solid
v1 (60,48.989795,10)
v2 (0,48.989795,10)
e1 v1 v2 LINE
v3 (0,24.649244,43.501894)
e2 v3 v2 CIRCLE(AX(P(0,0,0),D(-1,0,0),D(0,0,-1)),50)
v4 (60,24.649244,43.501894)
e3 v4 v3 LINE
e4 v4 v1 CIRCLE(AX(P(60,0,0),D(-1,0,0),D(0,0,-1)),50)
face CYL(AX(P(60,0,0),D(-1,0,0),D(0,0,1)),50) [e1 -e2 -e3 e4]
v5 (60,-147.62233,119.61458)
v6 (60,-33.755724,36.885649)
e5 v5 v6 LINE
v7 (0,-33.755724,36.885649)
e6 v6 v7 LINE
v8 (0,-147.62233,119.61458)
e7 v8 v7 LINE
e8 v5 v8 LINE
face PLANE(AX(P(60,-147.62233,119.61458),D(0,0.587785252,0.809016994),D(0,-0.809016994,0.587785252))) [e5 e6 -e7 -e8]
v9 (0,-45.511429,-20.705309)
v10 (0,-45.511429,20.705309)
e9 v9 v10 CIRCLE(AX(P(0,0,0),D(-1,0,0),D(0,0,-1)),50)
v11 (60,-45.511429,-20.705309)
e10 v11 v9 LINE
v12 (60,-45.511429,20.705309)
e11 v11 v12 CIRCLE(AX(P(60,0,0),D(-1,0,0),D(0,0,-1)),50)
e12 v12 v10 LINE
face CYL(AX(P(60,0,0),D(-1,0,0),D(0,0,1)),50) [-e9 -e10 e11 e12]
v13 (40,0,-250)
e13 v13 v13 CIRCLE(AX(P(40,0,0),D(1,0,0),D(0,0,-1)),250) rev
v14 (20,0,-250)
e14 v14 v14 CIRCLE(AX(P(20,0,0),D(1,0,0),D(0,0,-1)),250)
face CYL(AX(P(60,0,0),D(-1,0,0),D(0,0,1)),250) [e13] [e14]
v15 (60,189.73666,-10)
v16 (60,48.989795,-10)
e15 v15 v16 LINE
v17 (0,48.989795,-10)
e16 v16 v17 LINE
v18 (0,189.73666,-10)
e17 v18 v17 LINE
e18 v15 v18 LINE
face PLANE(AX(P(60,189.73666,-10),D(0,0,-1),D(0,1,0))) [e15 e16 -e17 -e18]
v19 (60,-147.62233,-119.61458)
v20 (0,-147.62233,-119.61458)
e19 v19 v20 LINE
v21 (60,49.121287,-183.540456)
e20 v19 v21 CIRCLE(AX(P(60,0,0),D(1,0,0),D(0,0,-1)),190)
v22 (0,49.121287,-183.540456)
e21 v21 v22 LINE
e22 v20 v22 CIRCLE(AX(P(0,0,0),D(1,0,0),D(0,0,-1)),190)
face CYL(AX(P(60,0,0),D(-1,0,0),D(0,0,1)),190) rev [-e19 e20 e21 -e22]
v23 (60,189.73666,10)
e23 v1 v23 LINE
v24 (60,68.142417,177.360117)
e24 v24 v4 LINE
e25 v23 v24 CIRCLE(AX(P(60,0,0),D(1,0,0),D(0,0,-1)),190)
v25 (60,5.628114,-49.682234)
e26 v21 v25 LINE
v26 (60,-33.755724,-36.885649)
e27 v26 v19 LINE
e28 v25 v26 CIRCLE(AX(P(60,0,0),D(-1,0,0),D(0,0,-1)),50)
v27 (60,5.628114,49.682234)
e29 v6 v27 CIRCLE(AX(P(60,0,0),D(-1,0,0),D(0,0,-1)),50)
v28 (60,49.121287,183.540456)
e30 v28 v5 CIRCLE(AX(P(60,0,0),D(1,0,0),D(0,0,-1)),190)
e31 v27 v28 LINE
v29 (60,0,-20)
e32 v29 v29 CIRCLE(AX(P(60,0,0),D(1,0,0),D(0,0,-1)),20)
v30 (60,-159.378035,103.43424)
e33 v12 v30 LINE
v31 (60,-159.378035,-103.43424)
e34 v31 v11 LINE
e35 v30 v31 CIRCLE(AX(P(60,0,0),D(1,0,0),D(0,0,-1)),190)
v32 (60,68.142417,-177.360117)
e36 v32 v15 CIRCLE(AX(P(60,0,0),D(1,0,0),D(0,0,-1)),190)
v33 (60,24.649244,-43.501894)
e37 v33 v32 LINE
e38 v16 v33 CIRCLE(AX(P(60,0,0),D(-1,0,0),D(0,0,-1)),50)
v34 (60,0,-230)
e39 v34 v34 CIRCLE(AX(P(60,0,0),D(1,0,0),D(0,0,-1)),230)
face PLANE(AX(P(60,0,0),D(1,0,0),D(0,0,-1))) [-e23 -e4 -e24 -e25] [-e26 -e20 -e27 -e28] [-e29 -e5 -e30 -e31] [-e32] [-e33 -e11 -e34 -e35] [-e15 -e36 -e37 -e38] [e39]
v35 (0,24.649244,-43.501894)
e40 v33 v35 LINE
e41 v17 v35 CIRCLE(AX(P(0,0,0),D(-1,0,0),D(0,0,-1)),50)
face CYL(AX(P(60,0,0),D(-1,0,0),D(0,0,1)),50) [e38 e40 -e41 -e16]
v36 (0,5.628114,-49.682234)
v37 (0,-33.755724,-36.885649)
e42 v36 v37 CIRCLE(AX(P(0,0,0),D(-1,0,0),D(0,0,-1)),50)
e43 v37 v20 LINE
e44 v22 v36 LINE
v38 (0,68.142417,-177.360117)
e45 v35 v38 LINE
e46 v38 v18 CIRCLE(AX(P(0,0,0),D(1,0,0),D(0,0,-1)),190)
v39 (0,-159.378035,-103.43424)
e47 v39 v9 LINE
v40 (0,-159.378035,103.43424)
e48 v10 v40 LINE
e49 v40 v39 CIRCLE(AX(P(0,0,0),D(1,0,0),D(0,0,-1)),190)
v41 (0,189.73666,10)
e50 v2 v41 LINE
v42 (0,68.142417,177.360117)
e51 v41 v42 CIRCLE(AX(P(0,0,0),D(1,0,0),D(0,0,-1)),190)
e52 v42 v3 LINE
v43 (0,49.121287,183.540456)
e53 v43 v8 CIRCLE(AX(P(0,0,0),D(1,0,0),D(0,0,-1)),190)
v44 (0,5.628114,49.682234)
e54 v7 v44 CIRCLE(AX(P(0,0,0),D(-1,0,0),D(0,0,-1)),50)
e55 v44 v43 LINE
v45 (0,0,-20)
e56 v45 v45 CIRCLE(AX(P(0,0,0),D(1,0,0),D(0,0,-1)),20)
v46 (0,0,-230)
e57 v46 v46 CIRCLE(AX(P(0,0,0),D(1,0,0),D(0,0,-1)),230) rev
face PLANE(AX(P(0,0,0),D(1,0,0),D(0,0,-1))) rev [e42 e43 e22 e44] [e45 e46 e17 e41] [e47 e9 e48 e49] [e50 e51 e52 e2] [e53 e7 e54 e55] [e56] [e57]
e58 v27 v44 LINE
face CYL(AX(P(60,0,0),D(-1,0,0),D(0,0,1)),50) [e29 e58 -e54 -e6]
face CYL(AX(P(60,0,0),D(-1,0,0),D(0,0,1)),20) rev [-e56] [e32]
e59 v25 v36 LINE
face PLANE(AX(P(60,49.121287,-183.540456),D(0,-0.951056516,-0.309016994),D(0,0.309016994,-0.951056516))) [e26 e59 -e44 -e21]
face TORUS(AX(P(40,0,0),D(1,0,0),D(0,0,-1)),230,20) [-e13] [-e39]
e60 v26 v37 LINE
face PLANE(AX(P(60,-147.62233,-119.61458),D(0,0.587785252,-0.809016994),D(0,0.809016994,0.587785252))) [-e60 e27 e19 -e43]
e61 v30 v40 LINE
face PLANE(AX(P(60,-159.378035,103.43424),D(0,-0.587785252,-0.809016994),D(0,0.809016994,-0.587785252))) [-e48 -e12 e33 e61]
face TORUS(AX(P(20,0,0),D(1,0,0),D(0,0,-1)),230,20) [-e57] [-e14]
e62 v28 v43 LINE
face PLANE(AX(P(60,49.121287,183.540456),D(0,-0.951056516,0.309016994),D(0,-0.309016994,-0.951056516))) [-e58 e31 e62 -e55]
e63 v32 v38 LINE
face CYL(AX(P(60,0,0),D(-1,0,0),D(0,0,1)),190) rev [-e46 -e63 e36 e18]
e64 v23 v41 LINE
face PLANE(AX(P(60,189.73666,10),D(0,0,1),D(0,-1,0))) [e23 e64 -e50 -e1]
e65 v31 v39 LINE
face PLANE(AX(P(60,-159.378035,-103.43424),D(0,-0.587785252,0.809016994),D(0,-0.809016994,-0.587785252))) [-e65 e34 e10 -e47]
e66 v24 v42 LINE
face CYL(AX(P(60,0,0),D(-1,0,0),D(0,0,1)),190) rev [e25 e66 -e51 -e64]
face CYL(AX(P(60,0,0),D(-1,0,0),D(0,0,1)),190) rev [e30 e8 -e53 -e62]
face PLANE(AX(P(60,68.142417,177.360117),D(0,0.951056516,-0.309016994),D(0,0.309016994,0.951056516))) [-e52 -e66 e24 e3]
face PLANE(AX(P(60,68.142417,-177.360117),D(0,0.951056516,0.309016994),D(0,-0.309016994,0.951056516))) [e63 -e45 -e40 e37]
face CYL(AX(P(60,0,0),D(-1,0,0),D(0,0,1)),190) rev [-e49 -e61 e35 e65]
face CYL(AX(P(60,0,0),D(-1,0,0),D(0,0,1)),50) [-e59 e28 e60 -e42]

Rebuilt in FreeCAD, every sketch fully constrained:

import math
import FreeCAD as App
import Part
import Sketcher

V = App.Vector
Q = App.Units.Quantity


def edges_at(feature, points):
    """Names of the edges that pass closest to the given points."""
    edges = feature.Shape.Edges
    near = lambda p: min(range(len(edges)), key=lambda i: edges[i].distToShape(Part.Vertex(*p))[0])
    return sorted({f"Edge{near(p) + 1}" for p in points})

doc = App.newDocument("Part")
body = doc.addObject("PartDesign::Body", "Body")

sketch1 = doc.addObject("Sketcher::SketchObject", "Sketch")
body.addObject(sketch1)
sketch1.AttachmentSupport = (doc.YZ_Plane, [""])
sketch1.MapMode = "FlatFace"
sketch1.addGeometry(Part.Circle(V(0, 0, 0), V(0, 0, 1), 250), False)
sketch1.addGeometry(Part.LineSegment(V(-34, 37, 0), V(-148, 120, 0)), False)
sketch1.addGeometry(Part.ArcOfCircle(Part.Circle(V(0, 0, 0), V(0, 0, 1), 190), math.radians(75), math.radians(141)), False)
sketch1.addGeometry(Part.LineSegment(V(49, 184, 0), V(6, 50, 0)), False)
sketch1.addGeometry(Part.ArcOfCircle(Part.Circle(V(0, 0, 0), V(0, 0, 1), 50), math.radians(84), math.radians(132)), False)
sketch1.addGeometry(Part.LineSegment(V(-46, -21, 0), V(-159, -103, 0)), False)
sketch1.addGeometry(Part.ArcOfCircle(Part.Circle(V(0, 0, 0), V(0, 0, 1), 190), math.radians(147), math.radians(213)), False)
sketch1.addGeometry(Part.LineSegment(V(-159, 103, 0), V(-46, 21, 0)), False)
sketch1.addGeometry(Part.ArcOfCircle(Part.Circle(V(0, 0, 0), V(0, 0, 1), 50), math.radians(156), math.radians(204)), False)
sketch1.addGeometry(Part.LineSegment(V(6, -50, 0), V(49, -184, 0)), False)
sketch1.addGeometry(Part.ArcOfCircle(Part.Circle(V(0, 0, 0), V(0, 0, 1), 190), math.radians(-141), math.radians(-75)), False)
sketch1.addGeometry(Part.LineSegment(V(-148, -120, 0), V(-34, -37, 0)), False)
sketch1.addGeometry(Part.ArcOfCircle(Part.Circle(V(0, 0, 0), V(0, 0, 1), 50), math.radians(-132), math.radians(-84)), False)
sketch1.addGeometry(Part.Circle(V(0, 0, 0), V(0, 0, 1), 20), False)
sketch1.addGeometry(Part.ArcOfCircle(Part.Circle(V(0, 0, 0), V(0, 0, 1), 190), math.radians(3), math.radians(69)), False)
sketch1.addGeometry(Part.LineSegment(V(190, 10, 0), V(49, 10, 0)), False)
sketch1.addGeometry(Part.ArcOfCircle(Part.Circle(V(0, 0, 0), V(0, 0, 1), 50), math.radians(12), math.radians(60)), False)
sketch1.addGeometry(Part.LineSegment(V(25, 44, 0), V(68, 177, 0)), False)
sketch1.addGeometry(Part.LineSegment(V(49, -10, 0), V(190, -10, 0)), False)
sketch1.addGeometry(Part.ArcOfCircle(Part.Circle(V(0, 0, 0), V(0, 0, 1), 190), math.radians(-69), math.radians(-3)), False)
sketch1.addGeometry(Part.LineSegment(V(68, -177, 0), V(25, -44, 0)), False)
sketch1.addGeometry(Part.ArcOfCircle(Part.Circle(V(0, 0, 0), V(0, 0, 1), 50), math.radians(-60), math.radians(-12)), False)
sketch1.addConstraint(Sketcher.Constraint("Coincident", 1, 2, 2, 2))
sketch1.addConstraint(Sketcher.Constraint("Coincident", 2, 1, 3, 1))
sketch1.addConstraint(Sketcher.Constraint("Coincident", 3, 2, 4, 1))
sketch1.addConstraint(Sketcher.Constraint("Coincident", 4, 2, 1, 1))
sketch1.addConstraint(Sketcher.Constraint("Coincident", 5, 2, 6, 2))
sketch1.addConstraint(Sketcher.Constraint("Coincident", 6, 1, 7, 1))
sketch1.addConstraint(Sketcher.Constraint("Coincident", 7, 2, 8, 1))
sketch1.addConstraint(Sketcher.Constraint("Coincident", 8, 2, 5, 1))
sketch1.addConstraint(Sketcher.Constraint("Coincident", 9, 2, 10, 2))
sketch1.addConstraint(Sketcher.Constraint("Coincident", 10, 1, 11, 1))
sketch1.addConstraint(Sketcher.Constraint("Coincident", 11, 2, 12, 1))
sketch1.addConstraint(Sketcher.Constraint("Coincident", 12, 2, 9, 1))
sketch1.addConstraint(Sketcher.Constraint("Coincident", 14, 1, 15, 1))
sketch1.addConstraint(Sketcher.Constraint("Coincident", 15, 2, 16, 1))
sketch1.addConstraint(Sketcher.Constraint("Coincident", 16, 2, 17, 1))
sketch1.addConstraint(Sketcher.Constraint("Coincident", 17, 2, 14, 2))
sketch1.addConstraint(Sketcher.Constraint("Coincident", 18, 2, 19, 2))
sketch1.addConstraint(Sketcher.Constraint("Coincident", 19, 1, 20, 1))
sketch1.addConstraint(Sketcher.Constraint("Coincident", 20, 2, 21, 1))
sketch1.addConstraint(Sketcher.Constraint("Coincident", 21, 2, 18, 1))
sketch1.addConstraint(Sketcher.Constraint("Horizontal", 15))
sketch1.addConstraint(Sketcher.Constraint("Horizontal", 18))
sketch1.addConstraint(Sketcher.Constraint("Coincident", 0, 3, -1, 1))
sketch1.addConstraint(Sketcher.Constraint("Coincident", 2, 3, -1, 1))
sketch1.addConstraint(Sketcher.Constraint("Coincident", 4, 3, -1, 1))
sketch1.addConstraint(Sketcher.Constraint("Coincident", 6, 3, -1, 1))
sketch1.addConstraint(Sketcher.Constraint("Coincident", 8, 3, -1, 1))
sketch1.addConstraint(Sketcher.Constraint("Coincident", 10, 3, -1, 1))
sketch1.addConstraint(Sketcher.Constraint("Coincident", 12, 3, -1, 1))
sketch1.addConstraint(Sketcher.Constraint("Coincident", 13, 3, -1, 1))
sketch1.addConstraint(Sketcher.Constraint("Coincident", 14, 3, -1, 1))
sketch1.addConstraint(Sketcher.Constraint("Coincident", 16, 3, -1, 1))
sketch1.addConstraint(Sketcher.Constraint("Coincident", 19, 3, -1, 1))
sketch1.addConstraint(Sketcher.Constraint("Coincident", 21, 3, -1, 1))
sketch1.addConstraint(Sketcher.Constraint("Equal", 2, 6))
sketch1.addConstraint(Sketcher.Constraint("Equal", 4, 8))
sketch1.addConstraint(Sketcher.Constraint("Equal", 6, 10))
sketch1.addConstraint(Sketcher.Constraint("Equal", 8, 12))
sketch1.addConstraint(Sketcher.Constraint("Equal", 10, 14))
sketch1.addConstraint(Sketcher.Constraint("Equal", 12, 16))
sketch1.addConstraint(Sketcher.Constraint("Equal", 14, 19))
sketch1.addConstraint(Sketcher.Constraint("Equal", 16, 21))
sketch1.addConstraint(Sketcher.Constraint("Parallel", 1, 7))
sketch1.addConstraint(Sketcher.Constraint("Parallel", 5, 11))
sketch1.addConstraint(Sketcher.Constraint("Parallel", 3, 17))
sketch1.addConstraint(Sketcher.Constraint("Parallel", 9, 20))
sketch1.addConstraint(Sketcher.Constraint("Vertical", 5, 2, 6, 1))
sketch1.addConstraint(Sketcher.Constraint("Vertical", 7, 2, 8, 2))
sketch1.addConstraint(Sketcher.Constraint("Vertical", 2, 1, 9, 2))
sketch1.addConstraint(Sketcher.Constraint("Vertical", 1, 2, 10, 1))
sketch1.addConstraint(Sketcher.Constraint("Vertical", 3, 2, 12, 2))
sketch1.addConstraint(Sketcher.Constraint("Vertical", 14, 1, 18, 2))
sketch1.addConstraint(Sketcher.Constraint("Vertical", 17, 2, 19, 1))
sketch1.addConstraint(Sketcher.Constraint("Equal", 1, 3))
sketch1.addConstraint(Sketcher.Constraint("Equal", 3, 5))
sketch1.addConstraint(Sketcher.Constraint("Equal", 11, 17))
sketch1.addConstraint(Sketcher.Constraint("Diameter", 0, 500.0))
sketch1.addConstraint(Sketcher.Constraint("Diameter", 13, 40.0))
sketch1.addConstraint(Sketcher.Constraint("Radius", 2, 190.0))
sketch1.addConstraint(Sketcher.Constraint("Radius", 4, 50.0))
sketch1.addConstraint(Sketcher.Constraint("Angle", 1, Q("144 deg")))
sketch1.addConstraint(Sketcher.Constraint("Angle", 3, Q("-108 deg")))
sketch1.addConstraint(Sketcher.Constraint("DistanceY", -1, 1, 14, 1, 10.0))
sketch1.addConstraint(Sketcher.Constraint("DistanceX", 10, 1, 8, 2, 102.1109))
pad1 = doc.addObject("PartDesign::Pad", "Pad")
body.addObject(pad1)
pad1.Profile = sketch1
pad1.Length = 60
doc.recompute()

fillet = doc.addObject("PartDesign::Fillet", "Fillet")
body.addObject(fillet)
fillet.Base = (pad1, edges_at(pad1, [(0, 0, 250), (60, 0, 250)]))
fillet.Radius = 20

doc.recompute()
